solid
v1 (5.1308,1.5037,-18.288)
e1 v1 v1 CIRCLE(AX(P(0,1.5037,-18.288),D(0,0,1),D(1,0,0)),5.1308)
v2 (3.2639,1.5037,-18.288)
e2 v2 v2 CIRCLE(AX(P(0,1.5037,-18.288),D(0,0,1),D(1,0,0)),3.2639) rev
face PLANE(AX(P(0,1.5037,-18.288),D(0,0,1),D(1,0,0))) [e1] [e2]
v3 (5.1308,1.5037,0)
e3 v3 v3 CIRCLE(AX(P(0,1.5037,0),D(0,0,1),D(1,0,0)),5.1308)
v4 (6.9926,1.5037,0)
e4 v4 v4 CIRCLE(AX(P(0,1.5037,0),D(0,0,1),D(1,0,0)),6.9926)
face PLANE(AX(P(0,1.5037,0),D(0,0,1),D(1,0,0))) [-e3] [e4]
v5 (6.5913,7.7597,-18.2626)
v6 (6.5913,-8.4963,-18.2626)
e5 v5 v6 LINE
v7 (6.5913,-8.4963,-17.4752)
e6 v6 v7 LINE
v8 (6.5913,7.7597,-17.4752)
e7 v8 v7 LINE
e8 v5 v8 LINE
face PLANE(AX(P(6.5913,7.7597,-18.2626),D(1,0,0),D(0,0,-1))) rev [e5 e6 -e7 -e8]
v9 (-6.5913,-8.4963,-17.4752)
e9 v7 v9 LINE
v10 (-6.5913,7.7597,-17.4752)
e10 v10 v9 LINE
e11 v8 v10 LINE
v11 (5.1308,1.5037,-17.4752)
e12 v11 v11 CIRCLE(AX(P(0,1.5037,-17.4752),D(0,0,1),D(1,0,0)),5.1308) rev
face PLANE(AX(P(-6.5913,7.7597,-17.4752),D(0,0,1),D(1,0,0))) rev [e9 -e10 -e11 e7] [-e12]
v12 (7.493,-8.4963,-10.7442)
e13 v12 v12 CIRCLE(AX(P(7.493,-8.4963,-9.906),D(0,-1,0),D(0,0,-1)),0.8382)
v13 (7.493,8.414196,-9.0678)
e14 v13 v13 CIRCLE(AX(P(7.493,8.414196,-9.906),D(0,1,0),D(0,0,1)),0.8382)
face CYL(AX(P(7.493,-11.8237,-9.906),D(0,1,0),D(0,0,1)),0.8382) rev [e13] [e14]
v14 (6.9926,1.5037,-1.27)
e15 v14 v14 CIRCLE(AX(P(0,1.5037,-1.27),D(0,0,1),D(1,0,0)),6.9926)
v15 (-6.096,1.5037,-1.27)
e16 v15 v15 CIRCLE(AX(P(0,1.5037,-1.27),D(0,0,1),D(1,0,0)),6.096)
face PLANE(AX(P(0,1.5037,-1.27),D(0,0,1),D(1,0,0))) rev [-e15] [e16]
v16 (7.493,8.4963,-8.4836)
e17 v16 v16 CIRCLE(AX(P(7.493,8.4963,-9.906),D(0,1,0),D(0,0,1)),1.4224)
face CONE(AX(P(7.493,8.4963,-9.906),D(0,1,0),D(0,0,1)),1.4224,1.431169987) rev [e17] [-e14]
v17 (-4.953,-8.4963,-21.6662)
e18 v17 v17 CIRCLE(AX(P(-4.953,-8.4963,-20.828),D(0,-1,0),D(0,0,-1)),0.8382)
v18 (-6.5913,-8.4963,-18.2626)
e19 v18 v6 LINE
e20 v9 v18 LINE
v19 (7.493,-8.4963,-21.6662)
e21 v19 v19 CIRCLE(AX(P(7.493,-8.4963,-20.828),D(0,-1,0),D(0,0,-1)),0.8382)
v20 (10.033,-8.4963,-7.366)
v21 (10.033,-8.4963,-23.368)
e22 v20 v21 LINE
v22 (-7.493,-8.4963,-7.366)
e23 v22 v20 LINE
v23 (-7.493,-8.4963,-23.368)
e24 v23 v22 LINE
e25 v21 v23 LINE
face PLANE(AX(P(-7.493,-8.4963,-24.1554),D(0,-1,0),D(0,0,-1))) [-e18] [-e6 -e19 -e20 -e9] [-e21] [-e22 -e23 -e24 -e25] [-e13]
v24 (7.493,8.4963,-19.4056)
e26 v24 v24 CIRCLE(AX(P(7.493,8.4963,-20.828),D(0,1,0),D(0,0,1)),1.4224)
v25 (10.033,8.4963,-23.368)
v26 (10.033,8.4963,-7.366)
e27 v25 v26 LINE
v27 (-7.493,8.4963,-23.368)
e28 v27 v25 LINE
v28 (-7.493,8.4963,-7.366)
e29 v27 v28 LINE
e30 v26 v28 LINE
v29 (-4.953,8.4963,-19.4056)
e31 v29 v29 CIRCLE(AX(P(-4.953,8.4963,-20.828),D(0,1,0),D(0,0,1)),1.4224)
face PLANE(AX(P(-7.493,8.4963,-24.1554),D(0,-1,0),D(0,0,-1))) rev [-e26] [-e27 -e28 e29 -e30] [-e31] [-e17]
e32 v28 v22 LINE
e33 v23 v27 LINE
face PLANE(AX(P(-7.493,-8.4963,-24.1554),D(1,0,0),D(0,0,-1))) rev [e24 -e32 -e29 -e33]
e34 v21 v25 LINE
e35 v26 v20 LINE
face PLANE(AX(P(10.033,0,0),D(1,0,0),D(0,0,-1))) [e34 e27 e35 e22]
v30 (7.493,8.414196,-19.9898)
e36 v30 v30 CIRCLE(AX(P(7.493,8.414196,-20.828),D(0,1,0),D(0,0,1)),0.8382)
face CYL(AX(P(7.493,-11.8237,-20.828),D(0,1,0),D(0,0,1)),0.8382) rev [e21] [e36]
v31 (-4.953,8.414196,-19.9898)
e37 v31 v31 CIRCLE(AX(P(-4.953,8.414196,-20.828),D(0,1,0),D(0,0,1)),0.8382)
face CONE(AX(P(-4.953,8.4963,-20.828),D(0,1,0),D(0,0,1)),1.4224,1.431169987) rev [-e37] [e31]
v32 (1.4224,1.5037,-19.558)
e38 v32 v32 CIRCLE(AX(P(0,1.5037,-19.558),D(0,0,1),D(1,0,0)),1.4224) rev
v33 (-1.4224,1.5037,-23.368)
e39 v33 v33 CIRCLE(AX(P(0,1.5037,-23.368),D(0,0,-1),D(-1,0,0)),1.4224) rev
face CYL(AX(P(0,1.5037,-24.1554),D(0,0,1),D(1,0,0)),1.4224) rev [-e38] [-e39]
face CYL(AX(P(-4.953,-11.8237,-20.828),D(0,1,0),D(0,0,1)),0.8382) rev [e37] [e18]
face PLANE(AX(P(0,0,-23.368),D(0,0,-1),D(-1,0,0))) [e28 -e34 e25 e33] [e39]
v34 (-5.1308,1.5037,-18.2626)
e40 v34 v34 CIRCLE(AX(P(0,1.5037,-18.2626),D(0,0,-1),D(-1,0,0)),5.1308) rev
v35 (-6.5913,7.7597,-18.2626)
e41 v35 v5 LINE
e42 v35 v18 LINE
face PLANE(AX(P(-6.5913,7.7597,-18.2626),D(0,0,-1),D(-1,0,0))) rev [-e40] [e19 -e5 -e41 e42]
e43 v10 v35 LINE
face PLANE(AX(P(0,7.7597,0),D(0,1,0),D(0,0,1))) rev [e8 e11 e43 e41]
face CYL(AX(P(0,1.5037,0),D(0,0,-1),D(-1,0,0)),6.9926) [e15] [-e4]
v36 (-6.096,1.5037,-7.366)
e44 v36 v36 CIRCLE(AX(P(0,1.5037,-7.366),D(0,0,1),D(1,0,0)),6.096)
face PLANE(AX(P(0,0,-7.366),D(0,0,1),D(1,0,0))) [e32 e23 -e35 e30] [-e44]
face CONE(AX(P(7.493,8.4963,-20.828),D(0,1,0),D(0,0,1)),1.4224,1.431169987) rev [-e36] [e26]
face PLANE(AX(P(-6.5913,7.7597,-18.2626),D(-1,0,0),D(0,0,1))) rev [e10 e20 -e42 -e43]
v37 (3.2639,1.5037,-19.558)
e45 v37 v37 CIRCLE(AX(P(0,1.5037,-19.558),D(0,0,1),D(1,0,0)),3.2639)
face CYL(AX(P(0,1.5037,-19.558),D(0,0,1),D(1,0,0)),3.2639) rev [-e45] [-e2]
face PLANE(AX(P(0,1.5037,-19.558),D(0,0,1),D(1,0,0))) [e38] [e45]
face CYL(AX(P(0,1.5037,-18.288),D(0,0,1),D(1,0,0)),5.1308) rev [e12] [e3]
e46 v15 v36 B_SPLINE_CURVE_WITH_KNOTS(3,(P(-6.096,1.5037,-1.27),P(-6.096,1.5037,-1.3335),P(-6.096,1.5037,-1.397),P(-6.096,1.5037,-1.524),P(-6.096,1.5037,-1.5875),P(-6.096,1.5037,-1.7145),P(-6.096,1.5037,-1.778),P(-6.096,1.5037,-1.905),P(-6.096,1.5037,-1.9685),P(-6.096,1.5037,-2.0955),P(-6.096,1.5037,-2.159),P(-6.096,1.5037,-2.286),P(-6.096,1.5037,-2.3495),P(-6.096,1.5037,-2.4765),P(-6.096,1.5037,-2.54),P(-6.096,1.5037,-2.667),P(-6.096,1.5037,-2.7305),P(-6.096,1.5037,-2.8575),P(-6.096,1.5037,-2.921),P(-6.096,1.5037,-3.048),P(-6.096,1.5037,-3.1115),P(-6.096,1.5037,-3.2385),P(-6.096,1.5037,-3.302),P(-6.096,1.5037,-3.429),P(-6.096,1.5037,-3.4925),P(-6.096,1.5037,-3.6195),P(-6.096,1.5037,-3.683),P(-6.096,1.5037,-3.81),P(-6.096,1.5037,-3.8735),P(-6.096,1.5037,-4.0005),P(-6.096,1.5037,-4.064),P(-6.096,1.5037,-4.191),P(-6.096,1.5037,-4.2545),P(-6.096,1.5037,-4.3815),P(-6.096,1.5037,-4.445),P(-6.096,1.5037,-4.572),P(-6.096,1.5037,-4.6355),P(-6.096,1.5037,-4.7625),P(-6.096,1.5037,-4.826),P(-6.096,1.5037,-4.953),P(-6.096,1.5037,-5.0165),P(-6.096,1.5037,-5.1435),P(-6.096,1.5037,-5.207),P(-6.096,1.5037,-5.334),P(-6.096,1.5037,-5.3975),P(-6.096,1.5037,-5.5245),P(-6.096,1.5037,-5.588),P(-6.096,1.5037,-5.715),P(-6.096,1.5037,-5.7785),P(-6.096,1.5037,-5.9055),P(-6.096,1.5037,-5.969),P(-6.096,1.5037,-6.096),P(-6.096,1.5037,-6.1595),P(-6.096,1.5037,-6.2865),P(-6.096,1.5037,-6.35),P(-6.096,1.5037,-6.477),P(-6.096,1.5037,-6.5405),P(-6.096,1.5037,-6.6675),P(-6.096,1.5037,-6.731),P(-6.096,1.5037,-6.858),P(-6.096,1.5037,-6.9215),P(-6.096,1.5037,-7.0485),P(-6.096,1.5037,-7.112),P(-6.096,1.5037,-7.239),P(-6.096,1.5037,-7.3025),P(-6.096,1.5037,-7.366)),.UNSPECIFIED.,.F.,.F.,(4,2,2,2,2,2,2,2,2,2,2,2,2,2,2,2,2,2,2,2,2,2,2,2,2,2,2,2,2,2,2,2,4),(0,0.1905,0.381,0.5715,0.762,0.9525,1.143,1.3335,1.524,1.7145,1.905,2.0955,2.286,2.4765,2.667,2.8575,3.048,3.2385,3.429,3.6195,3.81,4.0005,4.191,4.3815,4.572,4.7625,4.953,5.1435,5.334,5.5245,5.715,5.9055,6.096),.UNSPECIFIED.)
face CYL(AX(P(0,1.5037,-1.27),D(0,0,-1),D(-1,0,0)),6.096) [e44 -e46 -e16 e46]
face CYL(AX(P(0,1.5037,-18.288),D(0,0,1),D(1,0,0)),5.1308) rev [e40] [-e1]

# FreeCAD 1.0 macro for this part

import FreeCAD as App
import Part
import Sketcher

V = App.Vector
Q = App.Units.Quantity


def add_polygon(sketch, points):
    """Adds a closed chain of lines whose ends are joined by coincident constraints."""
    first, n = sketch.GeometryCount, len(points)
    for a, b in zip(points, points[1:] + points[:1]):
        sketch.addGeometry(Part.LineSegment(App.Vector(*a, 0), App.Vector(*b, 0)), False)
    for i in range(n):
        sketch.addConstraint(Sketcher.Constraint("Coincident", first + i, 2, first + (i + 1) % n, 1))

doc = App.newDocument("Part")
body = doc.addObject("PartDesign::Body", "Body")

# Sketch on XY plane
sketch1 = body.newObject("Sketcher::SketchObject", "Sketch")
sketch1.AttachmentSupport = (doc.getObject("XY_Plane"), [""])
sketch1.MapMode = "FlatFace"
add_polygon(sketch1, [(-7.493, 8.4963), (-7.493, -8.4963), (7.493, -8.4963), (7.493, 8.4963)])  # lines 0-3
sketch1.addConstraint([
    Sketcher.Constraint("Vertical", 0),
    Sketcher.Constraint("Horizontal", 1),
    Sketcher.Constraint("Vertical", 2),
    Sketcher.Constraint("Horizontal", 3),
    Sketcher.Constraint("Symmetric", 0, 2, 2, 2, -1, 1),
    Sketcher.Constraint("DistanceX", 1, 1, 1, 2, Q("0.59 in")),
    Sketcher.Constraint("DistanceY", 0, 2, 0, 1, Q("0.669 in")),
])
pad1 = body.newObject("PartDesign::Pad", "Pad")
pad1.Profile = sketch1
pad1.Length = Q("0.951 in")
pad1.Reversed = True

# Sketch on XY plane
sketch2 = body.newObject("Sketcher::SketchObject", "Sketch001")
sketch2.AttachmentSupport = (doc.getObject("XY_Plane"), [""])
sketch2.MapMode = "FlatFace"
sketch2.addGeometry(Part.Circle(V(0, 1.5037, 0), V(0, 0, 1), 1.4224), False)
sketch2.addConstraint([
    Sketcher.Constraint("PointOnObject", 0, 3, -2),
    Sketcher.Constraint("Diameter", 0, Q("0.112 in")),
    Sketcher.Constraint("DistanceY", -1, 1, 0, 3, 1.5037),
])
pocket1 = body.newObject("PartDesign::Pocket", "Pocket")
pocket1.Profile = sketch2
pocket1.Length = Q("0.951 in")

# Sketch on XY plane
sketch3 = body.newObject("Sketcher::SketchObject", "Sketch002")
sketch3.AttachmentSupport = (doc.getObject("XY_Plane"), [""])
sketch3.MapMode = "FlatFace"
sketch3.addGeometry(Part.Circle(V(0, 1.5037, 0), V(0, 0, 1), 3.2639), False)
sketch3.addConstraint([
    Sketcher.Constraint("PointOnObject", 0, 3, -2),
    Sketcher.Constraint("Diameter", 0, Q("0.257 in")),
    Sketcher.Constraint("DistanceY", -1, 1, 0, 3, 1.5037),
])
pocket2 = body.newObject("PartDesign::Pocket", "Pocket001")
pocket2.Profile = sketch3
pocket2.Length = Q("0.77 in")

# Sketch on XY plane
sketch4 = body.newObject("Sketcher::SketchObject", "Sketch003")
sketch4.AttachmentSupport = (doc.getObject("XY_Plane"), [""])
sketch4.MapMode = "FlatFace"
sketch4.addGeometry(Part.Circle(V(0, 1.5037, 0), V(0, 0, 1), 5.1308), False)
sketch4.addConstraint([
    Sketcher.Constraint("PointOnObject", 0, 3, -2),
    Sketcher.Constraint("Diameter", 0, Q("0.404 in")),
    Sketcher.Constraint("DistanceY", -1, 1, 0, 3, 1.5037),
])
pocket3 = body.newObject("PartDesign::Pocket", "Pocket002")
pocket3.Profile = sketch4
pocket3.Length = Q("0.72 in")

# Sketch on XY plane
sketch5 = body.newObject("Sketcher::SketchObject", "Sketch004")
sketch5.AttachmentSupport = (doc.getObject("XY_Plane"), [""])
sketch5.MapMode = "FlatFace"
add_polygon(sketch5, [(-7.493, 8.4963), (-7.493, -8.4963), (7.493, -8.4963), (7.493, 8.4963)])  # lines 0-3
sketch5.addGeometry(Part.Circle(V(0, 1.5037, 0), V(0, 0, 1), 5.1308), False)  # 4
sketch5.addConstraint([
    Sketcher.Constraint("Vertical", 0),
    Sketcher.Constraint("Horizontal", 1),
    Sketcher.Constraint("Vertical", 2),
    Sketcher.Constraint("Horizontal", 3),
    Sketcher.Constraint("Symmetric", 0, 2, 2, 2, -1, 1),
    Sketcher.Constraint("PointOnObject", 4, 3, -2),
    Sketcher.Constraint("Diameter", 4, Q("0.404 in")),
    Sketcher.Constraint("DistanceX", 1, 1, 1, 2, Q("0.59 in")),
    Sketcher.Constraint("DistanceY", 0, 2, 0, 1, Q("0.669 in")),
    Sketcher.Constraint("DistanceY", -1, 1, 4, 3, 1.5037),
])
pocket4 = body.newObject("PartDesign::Pocket", "Pocket003")
pocket4.Profile = sketch5
pocket4.Length = Q("0.29 in")

# Sketch on XY plane
sketch6 = body.newObject("Sketcher::SketchObject", "Sketch005")
sketch6.AttachmentSupport = (doc.getObject("XY_Plane"), [""])
sketch6.MapMode = "FlatFace"
sketch6.AttachmentOffset = App.Placement(V(0, 0, -0.05 * 25.4), App.Rotation())
sketch6.addGeometry([
    Part.Circle(V(0, 1.5037, 0), V(0, 0, 1), 6.096),
    Part.Circle(V(0, 1.5037, 0), V(0, 0, 1), 5.1308),
], False)
sketch6.addConstraint([
    Sketcher.Constraint("Coincident", 1, 3, 0, 3),
    Sketcher.Constraint("PointOnObject", 0, 3, -2),
    Sketcher.Constraint("Diameter", 0, Q("0.48 in")),
    Sketcher.Constraint("Diameter", 1, Q("0.404 in")),
    Sketcher.Constraint("DistanceY", -1, 1, 0, 3, 1.5037),
])
pad2 = body.newObject("PartDesign::Pad", "Pad001")
pad2.Profile = sketch6
pad2.Length = Q("0.24 in")
pad2.Reversed = True

# Sketch on XY plane
sketch7 = body.newObject("Sketcher::SketchObject", "Sketch006")
sketch7.AttachmentSupport = (doc.getObject("XY_Plane"), [""])
sketch7.MapMode = "FlatFace"
sketch7.addGeometry([
    Part.Circle(V(0, 1.5037, 0), V(0, 0, 1), 6.9926),
    Part.Circle(V(0, 1.5037, 0), V(0, 0, 1), 5.1308),
], False)
sketch7.addConstraint([
    Sketcher.Constraint("Coincident", 1, 3, 0, 3),
    Sketcher.Constraint("PointOnObject", 0, 3, -2),
    Sketcher.Constraint("Diameter", 1, Q("0.404 in")),
    Sketcher.Constraint("Diameter", 0, 13.9852),
    Sketcher.Constraint("DistanceY", -1, 1, 0, 3, 1.5037),
])
pad3 = body.newObject("PartDesign::Pad", "Pad002")
pad3.Profile = sketch7
pad3.Length = Q("0.05 in")
pad3.Reversed = True

# Sketch on XY plane
sketch8 = body.newObject("Sketcher::SketchObject", "Sketch007")
sketch8.AttachmentSupport = (doc.getObject("XY_Plane"), [""])
sketch8.MapMode = "FlatFace"
sketch8.AttachmentOffset = App.Placement(V(0, 0, -0.951 * 25.4), App.Rotation())
add_polygon(sketch8, [(7.493, 8.4963), (7.493, -8.4963), (-7.493, -8.4963), (-7.493, 8.4963)])  # lines 0-3
sketch8.addConstraint([
    Sketcher.Constraint("Vertical", 0),
    Sketcher.Constraint("Horizontal", 1),
    Sketcher.Constraint("Vertical", 2),
    Sketcher.Constraint("Horizontal", 3),
    Sketcher.Constraint("Symmetric", 0, 2, 2, 2, -1, 1),
    Sketcher.Constraint("DistanceX", 1, 2, 1, 1, Q("0.59 in")),
    Sketcher.Constraint("DistanceY", 0, 2, 0, 1, Q("0.669 in")),
])
pocket5 = body.newObject("PartDesign::Pocket", "Pocket004")
pocket5.Profile = sketch8
pocket5.Length = Q("0.031 in")
pocket5.Reversed = True

# Sketch on YZ plane
sketch9 = body.newObject("Sketcher::SketchObject", "Sketch008")
sketch9.AttachmentSupport = (doc.getObject("YZ_Plane"), [""])
sketch9.MapMode = "FlatFace"
sketch9.AttachmentOffset = App.Placement(V(0, 0, 0.295 * 25.4), App.Rotation())
add_polygon(sketch9, [(8.4963, -7.366), (-8.4963, -7.366), (-8.4963, -23.368), (8.4963, -23.368)])  # lines 0-3
sketch9.addConstraint([
    Sketcher.Constraint("Horizontal", 0),
    Sketcher.Constraint("Vertical", 1),
    Sketcher.Constraint("Horizontal", 2),
    Sketcher.Constraint("Vertical", 3),
    Sketcher.Constraint("DistanceY", 1, 2, 1, 1, Q("0.63 in")),
    Sketcher.Constraint("DistanceX", 0, 2, 0, 1, Q("0.669 in")),
    Sketcher.Constraint("DistanceY", 0, 2, -1, 1, Q("0.29 in")),
    Sketcher.Constraint("DistanceX", 0, 2, -1, 1, Q("0.3345 in")),
])
pad4 = body.newObject("PartDesign::Pad", "Pad003")
pad4.Profile = sketch9
pad4.Length = Q("0.1 in")

# Sketch on XZ plane
sketch10 = body.newObject("Sketcher::SketchObject", "Sketch009")
sketch10.AttachmentSupport = (doc.getObject("XZ_Plane"), [""])
sketch10.MapMode = "FlatFace"
sketch10.AttachmentOffset = App.Placement(V(0, 0, -0.3345 * 25.4), App.Rotation())
sketch10.addGeometry([
    Part.Circle(V(-4.953, -20.828, 0), V(0, 0, 1), 0.8382),
    Part.Circle(V(7.493, -20.828, 0), V(0, 0, 1), 0.8382),
    Part.Circle(V(7.493, -9.906, 0), V(0, 0, 1), 0.8382),
], False)
sketch10.addConstraint([
    Sketcher.Constraint("Equal", 0, 1),
    Sketcher.Constraint("Equal", 1, 2),
    Sketcher.Constraint("Horizontal", 0, 3, 1, 3),
    Sketcher.Constraint("Vertical", 1, 3, 2, 3),
    Sketcher.Constraint("Diameter", 0, Q("0.066 in")),
    Sketcher.Constraint("DistanceY", 0, 3, -1, 1, Q("0.82 in")),
    Sketcher.Constraint("DistanceY", 2, 3, -1, 1, Q("0.39 in")),
    Sketcher.Constraint("DistanceX", 0, 3, 1, 3, Q("0.49 in")),
    Sketcher.Constraint("DistanceX", 0, 3, -1, 1, Q("0.195 in")),
])
pocket6 = body.newObject("PartDesign::Pocket", "Pocket005")
pocket6.Profile = sketch10
pocket6.Length = Q("0.8 in")
pocket6.Reversed = True

# Sketch on YZ plane
sketch11 = body.newObject("Sketcher::SketchObject", "Sketch010")
sketch11.AttachmentSupport = (doc.getObject("YZ_Plane"), [""])
sketch11.MapMode = "FlatFace"
sketch11.AttachmentOffset = App.Placement(V(0, 0, -0.195 * 25.4), App.Rotation())
add_polygon(sketch11, [(8.4963, -20.828), (8.4963, -19.4056), (8.296395, -20.828)])  # lines 0-2
sketch11.addGeometry(Part.LineSegment(V(8.4963, -20.828, 0), V(8.296395, -20.828, 0)), True)  # axis
sketch11.addConstraint([
    Sketcher.Constraint("Vertical", 0),
    Sketcher.Constraint("Horizontal", 2),
    Sketcher.Constraint("Horizontal", 3),
    Sketcher.Constraint("Coincident", 3, 1, 2, 2),
    Sketcher.Constraint("Equal", 2, 3),
    Sketcher.Constraint("Angle", 1, Q("-98 deg")),
    Sketcher.Constraint("DistanceY", 0, 1, 0, 2, Q("0.056 in")),
    Sketcher.Constraint("DistanceY", 1, 2, -1, 1, Q("0.82 in")),
    Sketcher.Constraint("DistanceX", -1, 1, 0, 2, Q("0.3345 in")),
])
groove = body.newObject("PartDesign::Groove", "Groove")
groove.Profile = sketch11
groove.ReferenceAxis = (sketch11, ["Axis0"])
groove.Angle = 360

# Sketch on YZ plane
sketch12 = body.newObject("Sketcher::SketchObject", "Sketch011")
sketch12.AttachmentSupport = (doc.getObject("YZ_Plane"), [""])
sketch12.MapMode = "FlatFace"
sketch12.AttachmentOffset = App.Placement(V(0, 0, 0.295 * 25.4), App.Rotation())
add_polygon(sketch12, [(8.4963, -20.828), (8.4963, -19.4056), (8.296395, -20.828)])  # lines 0-2
sketch12.addGeometry(Part.LineSegment(V(8.4963, -20.828, 0), V(8.296395, -20.828, 0)), True)  # axis
sketch12.addConstraint([
    Sketcher.Constraint("Vertical", 0),
    Sketcher.Constraint("Horizontal", 2),
    Sketcher.Constraint("Horizontal", 3),
    Sketcher.Constraint("Coincident", 3, 1, 2, 2),
    Sketcher.Constraint("Equal", 2, 3),
    Sketcher.Constraint("Angle", 1, Q("-98 deg")),
    Sketcher.Constraint("DistanceY", 0, 1, 0, 2, Q("0.056 in")),
    Sketcher.Constraint("DistanceY", 1, 2, -1, 1, Q("0.82 in")),
    Sketcher.Constraint("DistanceX", -1, 1, 0, 2, Q("0.3345 in")),
])
groove2 = body.newObject("PartDesign::Groove", "Groove001")
groove2.Profile = sketch12
groove2.ReferenceAxis = (sketch12, ["Axis0"])
groove2.Angle = 360

# Sketch on YZ plane
sketch13 = body.newObject("Sketcher::SketchObject", "Sketch012")
sketch13.AttachmentSupport = (doc.getObject("YZ_Plane"), [""])
sketch13.MapMode = "FlatFace"
sketch13.AttachmentOffset = App.Placement(V(0, 0, 0.295 * 25.4), App.Rotation())
add_polygon(sketch13, [(8.4963, -9.906), (8.4963, -8.4836), (8.296395, -9.906)])  # lines 0-2
sketch13.addGeometry(Part.LineSegment(V(8.4963, -9.906, 0), V(8.296395, -9.906, 0)), True)  # axis
sketch13.addConstraint([
    Sketcher.Constraint("Vertical", 0),
    Sketcher.Constraint("Horizontal", 2),
    Sketcher.Constraint("Horizontal", 3),
    Sketcher.Constraint("Coincident", 3, 1, 2, 2),
    Sketcher.Constraint("Equal", 2, 3),
    Sketcher.Constraint("Angle", 1, Q("-98 deg")),
    Sketcher.Constraint("DistanceY", 0, 1, 0, 2, Q("0.056 in")),
    Sketcher.Constraint("DistanceY", 1, 2, -1, 1, Q("0.39 in")),
    Sketcher.Constraint("DistanceX", -1, 1, 0, 2, Q("0.3345 in")),
])
groove3 = body.newObject("PartDesign::Groove", "Groove002")
groove3.Profile = sketch13
groove3.ReferenceAxis = (sketch13, ["Axis0"])
groove3.Angle = 360

# Sketch on XZ plane
sketch14 = body.newObject("Sketcher::SketchObject", "Sketch013")
sketch14.AttachmentSupport = (doc.getObject("XZ_Plane"), [""])
sketch14.MapMode = "FlatFace"
sketch14.AttachmentOffset = App.Placement(V(0, 0, 0.3345 * 25.4), App.Rotation())
add_polygon(sketch14, [(-6.5913, -17.4752), (-6.5913, -18.2626), (6.5913, -18.2626), (6.5913, -17.4752)])  # lines 0-3
sketch14.addConstraint([
    Sketcher.Constraint("Vertical", 0),
    Sketcher.Constraint("Horizontal", 1),
    Sketcher.Constraint("Vertical", 2),
    Sketcher.Constraint("Horizontal", 3),
    Sketcher.Constraint("DistanceX", 1, 1, 1, 2, Q("0.519 in")),
    Sketcher.Constraint("DistanceY", 0, 2, 0, 1, Q("0.031 in")),
    Sketcher.Constraint("DistanceY", 0, 2, -1, 1, Q("0.719 in")),
    Sketcher.Constraint("DistanceX", 0, 2, -1, 1, Q("0.2595 in")),
])
pocket7 = body.newObject("PartDesign::Pocket", "Pocket006")
pocket7.Profile = sketch14
pocket7.Length = Q("0.64 in")

doc.recompute()
